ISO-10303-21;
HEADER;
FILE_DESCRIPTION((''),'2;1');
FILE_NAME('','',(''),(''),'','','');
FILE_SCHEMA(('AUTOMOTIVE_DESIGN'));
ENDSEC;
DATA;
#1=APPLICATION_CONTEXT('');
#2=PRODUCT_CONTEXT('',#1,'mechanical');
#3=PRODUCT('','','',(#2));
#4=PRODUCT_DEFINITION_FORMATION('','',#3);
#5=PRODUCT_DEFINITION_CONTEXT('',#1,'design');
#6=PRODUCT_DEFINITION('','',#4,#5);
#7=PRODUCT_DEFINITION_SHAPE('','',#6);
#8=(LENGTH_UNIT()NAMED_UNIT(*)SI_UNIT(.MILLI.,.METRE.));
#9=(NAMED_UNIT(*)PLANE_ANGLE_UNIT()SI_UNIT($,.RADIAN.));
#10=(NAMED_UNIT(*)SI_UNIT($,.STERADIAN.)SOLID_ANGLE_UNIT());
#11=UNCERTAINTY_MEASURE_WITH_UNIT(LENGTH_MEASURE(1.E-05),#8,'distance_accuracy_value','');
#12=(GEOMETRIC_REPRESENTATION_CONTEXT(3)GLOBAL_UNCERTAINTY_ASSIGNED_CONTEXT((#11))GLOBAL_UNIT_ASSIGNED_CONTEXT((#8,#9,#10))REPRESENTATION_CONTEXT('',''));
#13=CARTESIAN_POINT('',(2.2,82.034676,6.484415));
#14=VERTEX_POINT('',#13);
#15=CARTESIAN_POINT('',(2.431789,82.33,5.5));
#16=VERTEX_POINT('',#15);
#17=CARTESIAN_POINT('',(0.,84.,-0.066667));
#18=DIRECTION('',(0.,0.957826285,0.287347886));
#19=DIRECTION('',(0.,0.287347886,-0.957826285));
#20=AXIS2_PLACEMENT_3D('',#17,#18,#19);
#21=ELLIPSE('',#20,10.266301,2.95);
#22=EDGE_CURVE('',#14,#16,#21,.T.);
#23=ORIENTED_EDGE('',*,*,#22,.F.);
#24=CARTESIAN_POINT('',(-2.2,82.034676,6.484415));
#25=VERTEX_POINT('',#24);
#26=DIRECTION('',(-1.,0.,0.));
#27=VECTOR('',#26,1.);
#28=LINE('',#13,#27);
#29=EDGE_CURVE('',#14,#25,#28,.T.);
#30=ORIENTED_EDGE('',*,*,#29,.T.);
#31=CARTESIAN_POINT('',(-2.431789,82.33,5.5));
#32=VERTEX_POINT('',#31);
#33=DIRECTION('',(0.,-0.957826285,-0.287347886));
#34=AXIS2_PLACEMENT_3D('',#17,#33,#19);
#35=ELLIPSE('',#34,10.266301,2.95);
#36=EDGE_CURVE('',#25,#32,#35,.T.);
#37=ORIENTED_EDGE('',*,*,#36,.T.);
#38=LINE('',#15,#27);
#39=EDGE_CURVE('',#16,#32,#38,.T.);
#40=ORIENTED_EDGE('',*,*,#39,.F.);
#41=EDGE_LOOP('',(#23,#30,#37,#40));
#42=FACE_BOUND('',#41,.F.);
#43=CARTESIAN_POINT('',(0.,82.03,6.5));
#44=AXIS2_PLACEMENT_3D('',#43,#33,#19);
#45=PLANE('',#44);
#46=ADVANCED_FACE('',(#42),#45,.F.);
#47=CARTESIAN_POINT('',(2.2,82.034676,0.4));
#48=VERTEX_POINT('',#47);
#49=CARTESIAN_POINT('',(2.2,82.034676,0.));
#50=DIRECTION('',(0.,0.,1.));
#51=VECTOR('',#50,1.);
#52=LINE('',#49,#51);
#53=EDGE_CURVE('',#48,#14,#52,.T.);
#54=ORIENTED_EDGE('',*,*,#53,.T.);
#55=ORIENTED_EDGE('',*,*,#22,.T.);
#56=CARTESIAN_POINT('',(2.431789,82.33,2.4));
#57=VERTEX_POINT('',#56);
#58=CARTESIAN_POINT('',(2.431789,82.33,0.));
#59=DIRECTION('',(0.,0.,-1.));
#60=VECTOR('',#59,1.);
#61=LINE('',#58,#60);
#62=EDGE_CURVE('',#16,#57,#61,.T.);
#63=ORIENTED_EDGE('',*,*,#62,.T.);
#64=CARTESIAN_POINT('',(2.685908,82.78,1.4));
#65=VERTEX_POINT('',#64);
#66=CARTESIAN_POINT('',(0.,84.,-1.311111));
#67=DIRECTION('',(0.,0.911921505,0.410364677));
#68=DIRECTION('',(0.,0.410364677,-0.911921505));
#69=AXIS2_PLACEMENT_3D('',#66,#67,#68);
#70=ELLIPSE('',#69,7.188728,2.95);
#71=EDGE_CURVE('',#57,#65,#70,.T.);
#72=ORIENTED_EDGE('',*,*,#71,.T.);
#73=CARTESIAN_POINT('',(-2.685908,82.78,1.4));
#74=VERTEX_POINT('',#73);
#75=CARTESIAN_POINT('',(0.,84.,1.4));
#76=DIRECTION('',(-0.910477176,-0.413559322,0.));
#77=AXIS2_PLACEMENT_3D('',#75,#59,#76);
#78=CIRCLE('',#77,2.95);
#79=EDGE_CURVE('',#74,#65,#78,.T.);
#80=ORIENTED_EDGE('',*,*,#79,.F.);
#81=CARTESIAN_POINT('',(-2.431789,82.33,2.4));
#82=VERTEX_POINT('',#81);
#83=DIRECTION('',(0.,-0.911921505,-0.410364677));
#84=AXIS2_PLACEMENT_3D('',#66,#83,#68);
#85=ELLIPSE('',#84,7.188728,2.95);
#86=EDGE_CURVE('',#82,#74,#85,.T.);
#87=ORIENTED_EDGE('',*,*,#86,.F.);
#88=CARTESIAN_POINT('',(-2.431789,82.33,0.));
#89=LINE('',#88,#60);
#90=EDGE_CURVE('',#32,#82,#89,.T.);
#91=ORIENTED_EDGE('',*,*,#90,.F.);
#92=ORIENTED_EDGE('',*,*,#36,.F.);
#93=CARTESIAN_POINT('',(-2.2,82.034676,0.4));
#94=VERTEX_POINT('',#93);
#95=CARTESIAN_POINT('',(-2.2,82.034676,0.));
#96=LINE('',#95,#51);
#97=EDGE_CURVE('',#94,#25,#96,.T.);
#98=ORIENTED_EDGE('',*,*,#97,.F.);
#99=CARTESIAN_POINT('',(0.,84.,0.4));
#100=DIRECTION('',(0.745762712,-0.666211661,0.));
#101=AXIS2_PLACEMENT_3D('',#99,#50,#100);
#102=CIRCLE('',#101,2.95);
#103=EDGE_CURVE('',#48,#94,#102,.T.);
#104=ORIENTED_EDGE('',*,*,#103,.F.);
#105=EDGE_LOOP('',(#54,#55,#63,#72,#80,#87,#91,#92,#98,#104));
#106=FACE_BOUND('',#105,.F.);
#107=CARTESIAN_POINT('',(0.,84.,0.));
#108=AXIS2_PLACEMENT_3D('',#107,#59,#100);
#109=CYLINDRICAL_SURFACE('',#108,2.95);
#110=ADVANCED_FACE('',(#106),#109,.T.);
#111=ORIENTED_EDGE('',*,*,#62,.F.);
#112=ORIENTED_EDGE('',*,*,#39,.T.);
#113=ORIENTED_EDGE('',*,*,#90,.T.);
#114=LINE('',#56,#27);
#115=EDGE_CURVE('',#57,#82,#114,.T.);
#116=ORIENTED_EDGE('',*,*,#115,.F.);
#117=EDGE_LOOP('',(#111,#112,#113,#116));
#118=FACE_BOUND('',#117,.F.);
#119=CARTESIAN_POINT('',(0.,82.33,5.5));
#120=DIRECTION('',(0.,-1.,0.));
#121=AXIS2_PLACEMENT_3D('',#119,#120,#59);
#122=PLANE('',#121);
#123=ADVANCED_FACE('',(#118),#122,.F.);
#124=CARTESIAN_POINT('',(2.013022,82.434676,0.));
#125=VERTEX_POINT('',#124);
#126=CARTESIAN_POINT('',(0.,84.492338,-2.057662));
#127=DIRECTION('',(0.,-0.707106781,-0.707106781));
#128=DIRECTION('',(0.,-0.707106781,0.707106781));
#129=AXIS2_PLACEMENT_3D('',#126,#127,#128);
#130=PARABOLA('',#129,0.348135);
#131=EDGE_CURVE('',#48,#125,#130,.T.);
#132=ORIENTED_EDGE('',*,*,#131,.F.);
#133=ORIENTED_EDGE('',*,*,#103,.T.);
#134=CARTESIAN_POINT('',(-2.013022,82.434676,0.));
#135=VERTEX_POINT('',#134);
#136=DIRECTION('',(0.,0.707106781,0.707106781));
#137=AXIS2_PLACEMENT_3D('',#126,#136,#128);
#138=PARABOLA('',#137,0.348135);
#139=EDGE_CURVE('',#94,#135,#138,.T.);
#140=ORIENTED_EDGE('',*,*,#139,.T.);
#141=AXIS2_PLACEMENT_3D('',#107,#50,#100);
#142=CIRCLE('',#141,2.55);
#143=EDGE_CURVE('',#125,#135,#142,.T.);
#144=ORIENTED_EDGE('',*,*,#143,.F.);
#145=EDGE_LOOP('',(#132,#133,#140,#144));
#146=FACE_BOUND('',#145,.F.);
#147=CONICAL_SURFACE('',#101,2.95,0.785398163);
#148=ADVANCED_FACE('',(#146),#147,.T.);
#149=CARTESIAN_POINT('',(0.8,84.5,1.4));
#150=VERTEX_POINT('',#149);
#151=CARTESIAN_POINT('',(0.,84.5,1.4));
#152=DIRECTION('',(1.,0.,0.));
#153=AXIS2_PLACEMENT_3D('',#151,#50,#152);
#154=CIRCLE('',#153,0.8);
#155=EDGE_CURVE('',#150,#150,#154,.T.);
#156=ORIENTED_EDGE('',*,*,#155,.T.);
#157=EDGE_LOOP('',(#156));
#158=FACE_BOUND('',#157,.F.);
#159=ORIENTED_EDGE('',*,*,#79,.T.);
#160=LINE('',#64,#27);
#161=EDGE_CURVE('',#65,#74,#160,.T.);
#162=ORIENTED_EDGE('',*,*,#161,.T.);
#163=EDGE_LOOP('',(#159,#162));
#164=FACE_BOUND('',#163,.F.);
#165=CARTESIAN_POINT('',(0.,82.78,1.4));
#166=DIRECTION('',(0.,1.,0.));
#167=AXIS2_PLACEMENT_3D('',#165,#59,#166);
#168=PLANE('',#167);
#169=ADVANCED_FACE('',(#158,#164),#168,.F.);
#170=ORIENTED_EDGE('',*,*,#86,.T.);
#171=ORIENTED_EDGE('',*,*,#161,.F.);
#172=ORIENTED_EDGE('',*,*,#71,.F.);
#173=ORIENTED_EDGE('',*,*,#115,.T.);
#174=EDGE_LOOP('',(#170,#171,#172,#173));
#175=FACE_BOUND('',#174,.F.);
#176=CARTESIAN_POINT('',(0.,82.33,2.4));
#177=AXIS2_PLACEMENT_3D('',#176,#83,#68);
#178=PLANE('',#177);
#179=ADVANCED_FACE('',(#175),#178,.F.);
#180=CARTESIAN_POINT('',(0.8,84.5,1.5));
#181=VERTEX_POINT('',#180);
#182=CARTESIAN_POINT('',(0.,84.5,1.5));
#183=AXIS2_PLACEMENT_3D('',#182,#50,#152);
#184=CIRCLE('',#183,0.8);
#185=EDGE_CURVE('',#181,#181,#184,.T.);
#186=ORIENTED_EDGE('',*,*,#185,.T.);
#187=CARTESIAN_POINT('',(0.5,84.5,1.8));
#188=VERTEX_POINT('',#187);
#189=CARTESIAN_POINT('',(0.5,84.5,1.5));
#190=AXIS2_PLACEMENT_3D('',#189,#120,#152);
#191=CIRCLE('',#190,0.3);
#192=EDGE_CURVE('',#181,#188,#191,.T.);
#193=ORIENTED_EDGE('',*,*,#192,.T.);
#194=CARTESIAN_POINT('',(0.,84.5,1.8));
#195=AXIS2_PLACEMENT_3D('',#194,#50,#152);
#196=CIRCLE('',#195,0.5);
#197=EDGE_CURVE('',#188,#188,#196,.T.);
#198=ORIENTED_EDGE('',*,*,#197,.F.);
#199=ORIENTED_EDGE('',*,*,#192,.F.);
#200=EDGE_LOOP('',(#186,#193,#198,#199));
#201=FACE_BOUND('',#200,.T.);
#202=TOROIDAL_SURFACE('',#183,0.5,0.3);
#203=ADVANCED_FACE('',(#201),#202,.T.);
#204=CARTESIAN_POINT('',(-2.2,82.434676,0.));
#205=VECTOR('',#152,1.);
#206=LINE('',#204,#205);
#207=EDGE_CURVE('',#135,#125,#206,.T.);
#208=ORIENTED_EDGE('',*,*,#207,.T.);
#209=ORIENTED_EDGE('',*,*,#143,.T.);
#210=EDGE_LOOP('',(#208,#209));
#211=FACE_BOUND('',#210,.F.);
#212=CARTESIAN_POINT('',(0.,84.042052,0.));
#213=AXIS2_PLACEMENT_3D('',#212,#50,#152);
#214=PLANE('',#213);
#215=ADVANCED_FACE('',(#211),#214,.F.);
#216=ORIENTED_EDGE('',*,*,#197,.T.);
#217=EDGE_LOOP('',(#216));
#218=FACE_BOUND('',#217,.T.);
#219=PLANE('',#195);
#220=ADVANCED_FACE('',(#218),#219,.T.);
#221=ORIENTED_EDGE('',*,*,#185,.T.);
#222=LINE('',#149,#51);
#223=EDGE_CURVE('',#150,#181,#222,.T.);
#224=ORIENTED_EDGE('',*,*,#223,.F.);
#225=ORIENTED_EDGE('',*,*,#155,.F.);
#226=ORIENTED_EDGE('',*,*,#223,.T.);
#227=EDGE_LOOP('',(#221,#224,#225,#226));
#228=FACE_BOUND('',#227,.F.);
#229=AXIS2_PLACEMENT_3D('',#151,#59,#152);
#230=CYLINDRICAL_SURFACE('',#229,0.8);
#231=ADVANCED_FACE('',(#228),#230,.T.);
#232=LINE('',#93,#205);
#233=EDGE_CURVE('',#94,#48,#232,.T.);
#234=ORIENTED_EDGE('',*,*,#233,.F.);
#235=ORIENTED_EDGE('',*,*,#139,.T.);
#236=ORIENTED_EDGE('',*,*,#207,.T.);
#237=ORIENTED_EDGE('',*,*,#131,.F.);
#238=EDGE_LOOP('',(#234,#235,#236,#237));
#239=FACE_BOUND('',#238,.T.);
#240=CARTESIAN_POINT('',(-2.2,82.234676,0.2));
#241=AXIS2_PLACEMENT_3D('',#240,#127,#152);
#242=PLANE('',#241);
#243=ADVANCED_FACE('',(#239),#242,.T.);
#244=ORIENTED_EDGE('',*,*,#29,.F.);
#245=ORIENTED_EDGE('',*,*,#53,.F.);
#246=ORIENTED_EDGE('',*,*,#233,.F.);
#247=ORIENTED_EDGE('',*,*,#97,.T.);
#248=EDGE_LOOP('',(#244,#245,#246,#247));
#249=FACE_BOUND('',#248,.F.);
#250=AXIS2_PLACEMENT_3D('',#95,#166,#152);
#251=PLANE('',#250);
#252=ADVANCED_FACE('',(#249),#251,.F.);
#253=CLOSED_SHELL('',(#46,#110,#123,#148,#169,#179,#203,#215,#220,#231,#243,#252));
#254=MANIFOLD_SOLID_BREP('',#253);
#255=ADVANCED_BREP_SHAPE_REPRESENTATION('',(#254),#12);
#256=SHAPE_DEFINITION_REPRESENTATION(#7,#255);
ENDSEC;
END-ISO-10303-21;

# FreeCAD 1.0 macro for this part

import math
import FreeCAD as App
import Part
import Sketcher

V = App.Vector


def edges_at(feature, points):
    """Names of the edges that pass closest to the given points."""
    edges = feature.Shape.Edges
    near = lambda p: min(range(len(edges)), key=lambda i: edges[i].distToShape(Part.Vertex(*p))[0])
    return sorted({f"Edge{near(p) + 1}" for p in points})


def add_polygon(sketch, points):
    """Adds a closed chain of lines whose ends are joined by coincident constraints."""
    first, n = sketch.GeometryCount, len(points)
    for a, b in zip(points, points[1:] + points[:1]):
        sketch.addGeometry(Part.LineSegment(App.Vector(*a, 0), App.Vector(*b, 0)), False)
    for i in range(n):
        sketch.addConstraint(Sketcher.Constraint("Coincident", first + i, 2, first + (i + 1) % n, 1))

doc = App.newDocument("Part")
params = doc.addObject("Spreadsheet::Sheet", "Params")
for row, (alias, value) in enumerate([
    ("sketch1_radius", "2.95 mm"),
    ("sketch1_width", "4.4 mm"),
    ("pad1_length", "6.5 mm"),
    ("sketch2_height", "3.1 mm"),
    ("sketch2_height2", "5.1 mm"),
    ("sketch2_width", "5.22 mm"),
    ("sketch2_width2", "5.97 mm"),
    ("sketch3_diameter", "1.6 mm"),
    ("pad2_length", "0.4 mm"),
    ("fillet_radius", "0.3 mm"),
    ("chamfer_size", "0.4 mm"),
], start=1):
    params.set(f"A{row}", alias)
    params.set(f"B{row}", "=" + value)
    params.setAlias(f"B{row}", alias)

body = doc.addObject("PartDesign::Body", "Body")

sketch1 = body.newObject("Sketcher::SketchObject", "Sketch")
sketch1.AttachmentSupport = (doc.getObject("XY_Plane"), [""])
sketch1.MapMode = "FlatFace"
sketch1.addGeometry([
    Part.ArcOfCircle(Part.Circle(V(0, 0, 0), V(0, 0, 1), 3), math.radians(-42), math.radians(222)),
    Part.LineSegment(V(-2.2, -2, 0), V(2.2, -2, 0)),
], False)
sketch1.addConstraint([
    Sketcher.Constraint("Coincident", 0, 1, 1, 2),
    Sketcher.Constraint("Coincident", 1, 1, 0, 2),
    Sketcher.Constraint("Horizontal", 1),
    Sketcher.Constraint("Coincident", 0, 3, -1, 1),
    Sketcher.Constraint("Radius", 0, 2.95),
    Sketcher.Constraint("DistanceX", 1, 1, 1, 2, 4.4),
])
sketch1.setExpression("Constraints[4]", "Params.sketch1_radius")
sketch1.setExpression("Constraints[5]", "Params.sketch1_width")
pad1 = body.newObject("PartDesign::Pad", "Pad")
pad1.Profile = sketch1
pad1.setExpression("Length", "Params.pad1_length")

sketch2 = body.newObject("Sketcher::SketchObject", "Sketch001")
sketch2.AttachmentSupport = (doc.getObject("YZ_Plane"), [""])
sketch2.MapMode = "FlatFace"
add_polygon(sketch2, [(-2, 6.5), (-1.7, 5.5), (-1.7, 2.4), (-1.2, 1.4), (4, 1.4), (4, 6.5)])
sketch2.addConstraint([
    Sketcher.Constraint("Vertical", 1),
    Sketcher.Constraint("Horizontal", 3),
    Sketcher.Constraint("Vertical", 4),
    Sketcher.Constraint("Horizontal", 5),
    Sketcher.Constraint("DistanceY", 1, 2, 1, 1, 3.1),
    Sketcher.Constraint("DistanceY", 4, 1, 4, 2, 5.1),
    Sketcher.Constraint("DistanceX", -1, 1, 3, 2, 4.0),
    Sketcher.Constraint("DistanceY", 2, 2, 1, 2, 1.0),
    Sketcher.Constraint("DistanceX", 3, 1, 3, 2, 5.22),
    Sketcher.Constraint("DistanceX", 5, 2, 5, 1, 5.97),
    Sketcher.Constraint("DistanceY", -1, 1, 0, 2, 5.5),
    Sketcher.Constraint("DistanceX", 5, 2, 0, 2, 0.3),
])
sketch2.setExpression("Constraints[10]", "Params.sketch2_height")
sketch2.setExpression("Constraints[11]", "Params.sketch2_height2")
sketch2.setExpression("Constraints[14]", "Params.sketch2_width")
sketch2.setExpression("Constraints[15]", "Params.sketch2_width2")
pocket1 = body.newObject("PartDesign::Pocket", "Pocket")
pocket1.Profile = sketch2
pocket1.Type = "ThroughAll"
pocket1.Midplane = True

sketch3 = body.newObject("Sketcher::SketchObject", "Sketch002")
sketch3.AttachmentSupport = (doc.getObject("XY_Plane"), [""])
sketch3.MapMode = "FlatFace"
sketch3.AttachmentOffset = App.Placement(V(0, 0, 1.4), App.Rotation())
sketch3.addGeometry(Part.Circle(V(0, 0.5, 0), V(0, 0, 1), 0.8), False)
sketch3.addConstraint([
    Sketcher.Constraint("PointOnObject", 0, 3, -2),
    Sketcher.Constraint("Diameter", 0, 1.6),
    Sketcher.Constraint("DistanceY", -1, 1, 0, 3, 0.5),
])
sketch3.setExpression("Constraints[1]", "Params.sketch3_diameter")
pad2 = body.newObject("PartDesign::Pad", "Pad001")
pad2.Profile = sketch3
pad2.setExpression("Length", "Params.pad2_length")
doc.recompute()

fillet = body.newObject("PartDesign::Fillet", "Fillet")
fillet.Base = (pad2, edges_at(pad2, [(-0.8, 0.5, 1.8)]))
fillet.setExpression("Radius", "Params.fillet_radius")
doc.recompute()

chamfer = body.newObject("PartDesign::Chamfer", "Chamfer")
chamfer.Base = (fillet, edges_at(fillet, [(0, 2.95, 0), (0, -1.965, 0)]))
chamfer.setExpression("Size", "Params.chamfer_size")
body2 = doc.addObject("PartDesign::Body", "Body001")
doc.recompute()

body.Placement = App.Placement(V(0, 84, 0), App.Rotation(V(0, 0, 1), 0))
boolean = body2.newObject("PartDesign::Boolean", "Boolean")
boolean.Type = "Fuse"
boolean.addObjects([body])

doc.recompute()
